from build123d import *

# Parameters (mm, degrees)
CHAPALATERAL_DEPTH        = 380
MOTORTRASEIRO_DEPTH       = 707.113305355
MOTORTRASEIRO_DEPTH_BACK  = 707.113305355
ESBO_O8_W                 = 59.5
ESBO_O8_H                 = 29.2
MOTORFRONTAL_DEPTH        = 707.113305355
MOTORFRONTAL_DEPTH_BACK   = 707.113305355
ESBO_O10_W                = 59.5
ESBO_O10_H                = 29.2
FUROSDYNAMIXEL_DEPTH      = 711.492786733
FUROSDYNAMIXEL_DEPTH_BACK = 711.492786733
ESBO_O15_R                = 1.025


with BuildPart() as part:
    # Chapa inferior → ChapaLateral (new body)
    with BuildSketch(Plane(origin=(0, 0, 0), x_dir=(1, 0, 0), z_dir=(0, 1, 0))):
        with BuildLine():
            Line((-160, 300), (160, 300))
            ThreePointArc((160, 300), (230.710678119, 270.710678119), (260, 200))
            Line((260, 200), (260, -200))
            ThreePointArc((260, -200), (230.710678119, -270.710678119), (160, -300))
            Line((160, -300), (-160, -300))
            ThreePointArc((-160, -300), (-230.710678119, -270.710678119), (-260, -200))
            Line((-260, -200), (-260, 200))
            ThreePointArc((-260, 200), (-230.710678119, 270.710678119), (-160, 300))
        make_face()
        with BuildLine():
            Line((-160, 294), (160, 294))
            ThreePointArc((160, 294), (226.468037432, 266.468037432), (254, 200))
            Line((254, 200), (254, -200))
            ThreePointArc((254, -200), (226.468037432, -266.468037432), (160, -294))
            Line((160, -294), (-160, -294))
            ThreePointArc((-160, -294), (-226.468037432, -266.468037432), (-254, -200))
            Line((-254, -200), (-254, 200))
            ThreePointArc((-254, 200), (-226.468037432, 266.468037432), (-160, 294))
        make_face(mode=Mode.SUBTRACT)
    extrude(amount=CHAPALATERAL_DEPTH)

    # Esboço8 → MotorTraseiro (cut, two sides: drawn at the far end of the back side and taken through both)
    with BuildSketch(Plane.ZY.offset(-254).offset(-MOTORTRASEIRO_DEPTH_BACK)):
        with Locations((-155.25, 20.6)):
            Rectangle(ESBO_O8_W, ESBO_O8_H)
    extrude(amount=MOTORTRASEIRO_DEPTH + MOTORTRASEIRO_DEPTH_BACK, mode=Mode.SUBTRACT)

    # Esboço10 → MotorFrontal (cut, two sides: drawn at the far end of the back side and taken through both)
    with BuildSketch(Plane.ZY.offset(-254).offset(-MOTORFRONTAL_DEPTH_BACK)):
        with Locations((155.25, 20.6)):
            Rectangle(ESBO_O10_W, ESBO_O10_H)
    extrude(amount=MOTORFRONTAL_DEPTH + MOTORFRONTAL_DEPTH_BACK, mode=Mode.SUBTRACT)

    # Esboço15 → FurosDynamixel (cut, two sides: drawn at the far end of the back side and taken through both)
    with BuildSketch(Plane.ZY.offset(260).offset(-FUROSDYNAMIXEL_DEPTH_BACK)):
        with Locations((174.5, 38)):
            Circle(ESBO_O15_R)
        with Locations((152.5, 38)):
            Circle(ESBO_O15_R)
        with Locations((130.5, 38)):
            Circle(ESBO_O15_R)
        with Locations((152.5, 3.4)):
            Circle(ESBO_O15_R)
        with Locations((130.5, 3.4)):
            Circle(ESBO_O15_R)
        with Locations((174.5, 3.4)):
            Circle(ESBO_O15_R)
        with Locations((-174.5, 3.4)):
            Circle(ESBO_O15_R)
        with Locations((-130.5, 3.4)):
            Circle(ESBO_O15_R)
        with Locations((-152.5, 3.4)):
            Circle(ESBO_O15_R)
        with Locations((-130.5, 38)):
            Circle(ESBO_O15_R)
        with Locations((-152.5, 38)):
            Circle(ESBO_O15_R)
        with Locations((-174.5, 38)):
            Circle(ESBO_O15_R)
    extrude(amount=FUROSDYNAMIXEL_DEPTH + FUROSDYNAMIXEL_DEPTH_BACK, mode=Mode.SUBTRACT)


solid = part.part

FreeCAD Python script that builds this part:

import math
import FreeCAD as App
import Part
import Sketcher

V = App.Vector
Q = App.Units.Quantity


def add_polygon(sketch, points):
    """Adds a closed chain of lines whose ends are joined by coincident constraints."""
    first, n = sketch.GeometryCount, len(points)
    for a, b in zip(points, points[1:] + points[:1]):
        sketch.addGeometry(Part.LineSegment(App.Vector(*a, 0), App.Vector(*b, 0)), False)
    for i in range(n):
        sketch.addConstraint(Sketcher.Constraint("Coincident", first + i, 2, first + (i + 1) % n, 1))

doc = App.newDocument("Part")
body = doc.addObject("PartDesign::Body", "Body")

# Sketch on XZ plane
sketch1 = body.newObject("Sketcher::SketchObject", "Sketch")
sketch1.AttachmentSupport = (doc.getObject("XZ_Plane"), [""])
sketch1.MapMode = "FlatFace"
sketch1.addGeometry([
    Part.LineSegment(V(160, -300, 0), V(-160, -300, 0)),  # 0
    Part.ArcOfCircle(Part.Circle(V(-160, -200, 0), V(0, 0, 1), 100), math.radians(180), math.radians(270)),  # 1
    Part.LineSegment(V(-260, -200, 0), V(-260, 200, 0)),  # 2
    Part.ArcOfCircle(Part.Circle(V(-160, 200, 0), V(0, 0, 1), 100), math.radians(90), math.radians(180)),  # 3
    Part.LineSegment(V(-160, 300, 0), V(160, 300, 0)),  # 4
    Part.ArcOfCircle(Part.Circle(V(160, 200, 0), V(0, 0, 1), 100), math.radians(0), math.radians(90)),  # 5
    Part.LineSegment(V(260, 200, 0), V(260, -200, 0)),  # 6
    Part.ArcOfCircle(Part.Circle(V(160, -200, 0), V(0, 0, 1), 100), math.radians(-90), math.radians(0)),  # 7
    Part.LineSegment(V(-160, -294, 0), V(160, -294, 0)),  # 8
    Part.ArcOfCircle(Part.Circle(V(160, -200, 0), V(0, 0, 1), 94), math.radians(-90), math.radians(0)),  # 9
    Part.LineSegment(V(254, -200, 0), V(254, 200, 0)),  # 10
    Part.ArcOfCircle(Part.Circle(V(160, 200, 0), V(0, 0, 1), 94), math.radians(0), math.radians(90)),  # 11
    Part.LineSegment(V(160, 294, 0), V(-160, 294, 0)),  # 12
    Part.ArcOfCircle(Part.Circle(V(-160, 200, 0), V(0, 0, 1), 94), math.radians(90), math.radians(180)),  # 13
    Part.LineSegment(V(-254, 200, 0), V(-254, -200, 0)),  # 14
    Part.ArcOfCircle(Part.Circle(V(-160, -200, 0), V(0, 0, 1), 94), math.radians(180), math.radians(270)),  # 15
], False)
sketch1.addConstraint([
    Sketcher.Constraint("Tangent", 0, 2, 1, 2),
    Sketcher.Constraint("Tangent", 1, 1, 2, 1),
    Sketcher.Constraint("Tangent", 2, 2, 3, 2),
    Sketcher.Constraint("Tangent", 3, 1, 4, 1),
    Sketcher.Constraint("Tangent", 4, 2, 5, 2),
    Sketcher.Constraint("Tangent", 5, 1, 6, 1),
    Sketcher.Constraint("Tangent", 6, 2, 7, 2),
    Sketcher.Constraint("Tangent", 7, 1, 0, 1),
    Sketcher.Constraint("Tangent", 8, 2, 9, 1),
    Sketcher.Constraint("Tangent", 9, 2, 10, 1),
    Sketcher.Constraint("Tangent", 10, 2, 11, 1),
    Sketcher.Constraint("Tangent", 11, 2, 12, 1),
    Sketcher.Constraint("Tangent", 12, 2, 13, 1),
    Sketcher.Constraint("Tangent", 13, 2, 14, 1),
    Sketcher.Constraint("Tangent", 14, 2, 15, 1),
    Sketcher.Constraint("Tangent", 15, 2, 8, 1),
    Sketcher.Constraint("Horizontal", 0),
    Sketcher.Constraint("Vertical", 2),
    Sketcher.Constraint("Horizontal", 4),
    Sketcher.Constraint("Vertical", 6),
    Sketcher.Constraint("Horizontal", 8),
    Sketcher.Constraint("Vertical", 10),
    Sketcher.Constraint("Horizontal", 12),
    Sketcher.Constraint("Vertical", 14),
    Sketcher.Constraint("Coincident", 9, 3, 7, 3),
    Sketcher.Constraint("Coincident", 11, 3, 5, 3),
    Sketcher.Constraint("Coincident", 13, 3, 3, 3),
    Sketcher.Constraint("Equal", 1, 3),
    Sketcher.Constraint("Equal", 3, 5),
    Sketcher.Constraint("Equal", 5, 7),
    Sketcher.Constraint("Equal", 13, 15),
    Sketcher.Constraint("Symmetric", 1, 3, 5, 3, -1, 1),
    Sketcher.Constraint("Radius", 1, Q("100 mm")),
    Sketcher.Constraint("Radius", 9, Q("94 mm")),
    Sketcher.Constraint("DistanceX", 0, 2, 0, 1, Q("320 mm")),
    Sketcher.Constraint("DistanceY", 2, 1, 2, 2, Q("400 mm")),
])
pad1 = body.newObject("PartDesign::Pad", "Pad")
pad1.Profile = sketch1
pad1.Length = 380
pad1.Reversed = True

# Sketch on YZ plane
sketch2 = body.newObject("Sketcher::SketchObject", "Sketch001")
sketch2.AttachmentSupport = (doc.getObject("YZ_Plane"), [""])
sketch2.MapMode = "FlatFace"
sketch2.AttachmentOffset = App.Placement(V(0, 0, 254), App.Rotation())
add_polygon(sketch2, [(35.2, -185), (6, -185), (6, -125.5), (35.2, -125.5)])  # lines 0-3
sketch2.addConstraint([
    Sketcher.Constraint("Horizontal", 0),
    Sketcher.Constraint("Vertical", 1),
    Sketcher.Constraint("Horizontal", 2),
    Sketcher.Constraint("Vertical", 3),
    Sketcher.Constraint("DistanceX", 0, 2, 0, 1, Q("29.2 mm")),
    Sketcher.Constraint("DistanceY", 1, 1, 1, 2, Q("59.5 mm")),
    Sketcher.Constraint("DistanceX", -1, 1, 0, 2, Q("6 mm")),
    Sketcher.Constraint("DistanceY", 0, 2, -1, 1, Q("185 mm")),
])
pocket1 = body.newObject("PartDesign::Pocket", "Pocket")
pocket1.Profile = sketch2
pocket1.Type = "ThroughAll"
pocket1.Midplane = True

# Sketch on YZ plane
sketch3 = body.newObject("Sketcher::SketchObject", "Sketch002")
sketch3.AttachmentSupport = (doc.getObject("YZ_Plane"), [""])
sketch3.MapMode = "FlatFace"
sketch3.AttachmentOffset = App.Placement(V(0, 0, 254), App.Rotation())
add_polygon(sketch3, [(35.2, 125.5), (6, 125.5), (6, 185), (35.2, 185)])  # lines 0-3
sketch3.addConstraint([
    Sketcher.Constraint("Horizontal", 0),
    Sketcher.Constraint("Vertical", 1),
    Sketcher.Constraint("Horizontal", 2),
    Sketcher.Constraint("Vertical", 3),
    Sketcher.Constraint("DistanceX", 0, 2, 0, 1, Q("29.2 mm")),
    Sketcher.Constraint("DistanceY", 1, 1, 1, 2, Q("59.5 mm")),
    Sketcher.Constraint("DistanceX", -1, 1, 0, 2, Q("6 mm")),
    Sketcher.Constraint("DistanceY", -1, 1, 1, 2, Q("185 mm")),
])
pocket2 = body.newObject("PartDesign::Pocket", "Pocket001")
pocket2.Profile = sketch3
pocket2.Type = "ThroughAll"
pocket2.Midplane = True

# Sketch on YZ plane
sketch4 = body.newObject("Sketcher::SketchObject", "Sketch003")
sketch4.AttachmentSupport = (doc.getObject("YZ_Plane"), [""])
sketch4.MapMode = "FlatFace"
sketch4.AttachmentOffset = App.Placement(V(0, 0, -260), App.Rotation())
sketch4.addGeometry([
    Part.Circle(V(38, 174.5, 0), V(0, 0, 1), 1.025),  # 0
    Part.Circle(V(38, 152.5, 0), V(0, 0, 1), 1.025),  # 1
    Part.Circle(V(38, 130.5, 0), V(0, 0, 1), 1.025),  # 2
    Part.Circle(V(3.4, 152.5, 0), V(0, 0, 1), 1.025),  # 3
    Part.Circle(V(3.4, 130.5, 0), V(0, 0, 1), 1.025),  # 4
    Part.Circle(V(3.4, 174.5, 0), V(0, 0, 1), 1.025),  # 5
    Part.Circle(V(3.4, -174.5, 0), V(0, 0, 1), 1.025),  # 6
    Part.Circle(V(3.4, -130.5, 0), V(0, 0, 1), 1.025),  # 7
    Part.Circle(V(3.4, -152.5, 0), V(0, 0, 1), 1.025),  # 8
    Part.Circle(V(38, -130.5, 0), V(0, 0, 1), 1.025),  # 9
    Part.Circle(V(38, -152.5, 0), V(0, 0, 1), 1.025),  # 10
    Part.Circle(V(38, -174.5, 0), V(0, 0, 1), 1.025),  # 11
], False)
sketch4.addConstraint([
    Sketcher.Constraint("Equal", 0, 1),
    Sketcher.Constraint("Equal", 1, 2),
    Sketcher.Constraint("Equal", 2, 3),
    Sketcher.Constraint("Equal", 3, 4),
    Sketcher.Constraint("Equal", 4, 5),
    Sketcher.Constraint("Equal", 5, 6),
    Sketcher.Constraint("Equal", 6, 7),
    Sketcher.Constraint("Equal", 7, 8),
    Sketcher.Constraint("Equal", 8, 9),
    Sketcher.Constraint("Equal", 9, 10),
    Sketcher.Constraint("Equal", 10, 11),
    Sketcher.Constraint("Symmetric", 5, 3, 6, 3, -1),
    Sketcher.Constraint("Symmetric", 4, 3, 7, 3, -1),
    Sketcher.Constraint("Symmetric", 3, 3, 8, 3, -1),
    Sketcher.Constraint("Symmetric", 2, 3, 9, 3, -1),
    Sketcher.Constraint("Symmetric", 1, 3, 10, 3, -1),
    Sketcher.Constraint("Symmetric", 0, 3, 11, 3, -1),
    Sketcher.Constraint("Horizontal", 1, 3, 3, 3),
    Sketcher.Constraint("Horizontal", 2, 3, 4, 3),
    Sketcher.Constraint("Horizontal", 0, 3, 5, 3),
    Sketcher.Constraint("Vertical", 0, 3, 1, 3),
    Sketcher.Constraint("Vertical", 1, 3, 2, 3),
    Sketcher.Constraint("Vertical", 3, 3, 4, 3),
    Sketcher.Constraint("Vertical", 4, 3, 5, 3),
    Sketcher.Constraint("Diameter", 0, Q("2.05 mm")),
    Sketcher.Constraint("DistanceX", -1, 1, 0, 3, Q("38 mm")),
    Sketcher.Constraint("DistanceY", 1, 3, 0, 3, Q("22 mm")),
    Sketcher.Constraint("DistanceY", 2, 3, 1, 3, Q("22 mm")),
    Sketcher.Constraint("DistanceY", 6, 3, 4, 3, Q("305 mm")),
    Sketcher.Constraint("DistanceX", -1, 1, 3, 3, Q("3.4 mm")),
])
pocket3 = body.newObject("PartDesign::Pocket", "Pocket002")
pocket3.Profile = sketch4
pocket3.Type = "ThroughAll"
pocket3.Midplane = True

doc.recompute()
